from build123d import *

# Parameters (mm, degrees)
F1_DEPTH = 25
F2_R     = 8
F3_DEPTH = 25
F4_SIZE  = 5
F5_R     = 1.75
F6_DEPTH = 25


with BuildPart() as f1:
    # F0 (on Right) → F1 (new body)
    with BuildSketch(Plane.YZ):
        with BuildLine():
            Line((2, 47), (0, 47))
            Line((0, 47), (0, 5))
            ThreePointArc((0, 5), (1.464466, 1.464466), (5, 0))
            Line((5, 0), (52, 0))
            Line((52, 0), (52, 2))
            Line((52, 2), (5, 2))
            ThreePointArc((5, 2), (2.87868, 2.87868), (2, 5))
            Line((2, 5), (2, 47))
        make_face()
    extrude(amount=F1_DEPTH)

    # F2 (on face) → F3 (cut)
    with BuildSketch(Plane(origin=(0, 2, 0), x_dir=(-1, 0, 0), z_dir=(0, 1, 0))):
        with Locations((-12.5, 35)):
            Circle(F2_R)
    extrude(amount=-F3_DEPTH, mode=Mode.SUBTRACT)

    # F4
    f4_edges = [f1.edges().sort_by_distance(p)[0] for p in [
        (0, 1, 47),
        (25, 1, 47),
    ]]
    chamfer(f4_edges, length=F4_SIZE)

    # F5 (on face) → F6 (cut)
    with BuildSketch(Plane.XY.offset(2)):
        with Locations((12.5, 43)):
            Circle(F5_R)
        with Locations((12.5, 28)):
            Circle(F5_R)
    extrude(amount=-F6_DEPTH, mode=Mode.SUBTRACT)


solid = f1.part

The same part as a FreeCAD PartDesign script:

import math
import FreeCAD as App
import Part
import Sketcher
Q = App.Units.Quantity


def edges_at(feature, points):
    """Names of the edges that pass closest to the given points."""
    edges = feature.Shape.Edges
    near = lambda p: min(range(len(edges)), key=lambda i: edges[i].distToShape(Part.Vertex(*p))[0])
    return sorted({f"Edge{near(p) + 1}" for p in points})

doc = App.newDocument("Part")
body = doc.addObject("PartDesign::Body", "Body")

# Sketch on YZ plane
sketch1 = body.newObject("Sketcher::SketchObject", "Sketch")
sketch1.AttachmentSupport = (doc.getObject("YZ_Plane"), [""])
sketch1.MapMode = "FlatFace"
sketch1.addGeometry(Part.LineSegment(App.Vector(2, 47, 0), App.Vector(0, 47, 0)), False)
sketch1.addGeometry(Part.LineSegment(App.Vector(0, 47, 0), App.Vector(0, 5, 0)), False)
sketch1.addGeometry(Part.ArcOfCircle(Part.Circle(App.Vector(5, 5, 0), App.Vector(0, 0, 1), 5), math.radians(180), math.radians(270)), False)
sketch1.addGeometry(Part.LineSegment(App.Vector(5, 0, 0), App.Vector(52, 0, 0)), False)
sketch1.addGeometry(Part.LineSegment(App.Vector(52, 0, 0), App.Vector(52, 2, 0)), False)
sketch1.addGeometry(Part.LineSegment(App.Vector(52, 2, 0), App.Vector(5, 2, 0)), False)
sketch1.addGeometry(Part.ArcOfCircle(Part.Circle(App.Vector(5, 5, 0), App.Vector(0, 0, 1), 3), math.radians(-180), math.radians(-90)), False)
sketch1.addGeometry(Part.LineSegment(App.Vector(2, 5, 0), App.Vector(2, 47, 0)), False)
sketch1.addConstraint(Sketcher.Constraint("Coincident", 0, 2, 1, 1))
sketch1.addConstraint(Sketcher.Constraint("Tangent", 1, 2, 2, 1))
sketch1.addConstraint(Sketcher.Constraint("Tangent", 2, 2, 3, 1))
sketch1.addConstraint(Sketcher.Constraint("Coincident", 3, 2, 4, 1))
sketch1.addConstraint(Sketcher.Constraint("Coincident", 4, 2, 5, 1))
sketch1.addConstraint(Sketcher.Constraint("Tangent", 5, 2, 6, 2))
sketch1.addConstraint(Sketcher.Constraint("Tangent", 6, 1, 7, 1))
sketch1.addConstraint(Sketcher.Constraint("Coincident", 7, 2, 0, 1))
sketch1.addConstraint(Sketcher.Constraint("Horizontal", 0))
sketch1.addConstraint(Sketcher.Constraint("Vertical", 1))
sketch1.addConstraint(Sketcher.Constraint("Horizontal", 3))
sketch1.addConstraint(Sketcher.Constraint("Vertical", 4))
sketch1.addConstraint(Sketcher.Constraint("Horizontal", 5))
sketch1.addConstraint(Sketcher.Constraint("Vertical", 7))
sketch1.addConstraint(Sketcher.Constraint("Coincident", 6, 3, 2, 3))
sketch1.addConstraint(Sketcher.Constraint("PointOnObject", 0, 2, -2))
sketch1.addConstraint(Sketcher.Constraint("PointOnObject", 2, 2, -1))
sketch1.addConstraint(Sketcher.Constraint("Radius", 2, Q("5 mm")))
sketch1.addConstraint(Sketcher.Constraint("Radius", 6, Q("3.000001 mm")))
sketch1.addConstraint(Sketcher.Constraint("DistanceX", 3, 1, 3, 2, Q("47 mm")))
sketch1.addConstraint(Sketcher.Constraint("DistanceY", 1, 2, 1, 1, Q("42 mm")))
pad1 = body.newObject("PartDesign::Pad", "Pad")
pad1.Profile = sketch1
pad1.Length = 25

# Sketch on XZ plane
sketch2 = body.newObject("Sketcher::SketchObject", "Sketch001")
sketch2.AttachmentSupport = (doc.getObject("XZ_Plane"), [""])
sketch2.MapMode = "FlatFace"
sketch2.AttachmentOffset = App.Placement(App.Vector(0, 0, -2), App.Rotation())
sketch2.addGeometry(Part.Circle(App.Vector(12, 35, 0), App.Vector(0, 0, 1), 8), False)
sketch2.addConstraint(Sketcher.Constraint("Diameter", 0, Q("16 mm")))
sketch2.addConstraint(Sketcher.Constraint("DistanceY", -1, 1, 0, 3, Q("35 mm")))
sketch2.addConstraint(Sketcher.Constraint("DistanceX", -1, 1, 0, 3, Q("12.5 mm")))
pocket1 = body.newObject("PartDesign::Pocket", "Pocket")
pocket1.Profile = sketch2
pocket1.Length = 25
pocket1.Reversed = True
doc.recompute()

chamfer = body.newObject("PartDesign::Chamfer", "Chamfer")
chamfer.Base = (pocket1, edges_at(pocket1, [(0, 1, 47), (25, 1, 47)]))
chamfer.Size = 5

# Sketch on XY plane
sketch3 = body.newObject("Sketcher::SketchObject", "Sketch002")
sketch3.AttachmentSupport = (doc.getObject("XY_Plane"), [""])
sketch3.MapMode = "FlatFace"
sketch3.AttachmentOffset = App.Placement(App.Vector(0, 0, 2), App.Rotation())
sketch3.addGeometry(Part.Circle(App.Vector(12.5, 43, 0), App.Vector(0, 0, 1), 1.8), False)
sketch3.addGeometry(Part.Circle(App.Vector(12.5, 28, 0), App.Vector(0, 0, 1), 1.8), False)
sketch3.addConstraint(Sketcher.Constraint("Equal", 0, 1))
sketch3.addConstraint(Sketcher.Constraint("Vertical", 0, 3, 1, 3))
sketch3.addConstraint(Sketcher.Constraint("Diameter", 0, Q("3.5 mm")))
sketch3.addConstraint(Sketcher.Constraint("DistanceY", -1, 1, 0, 3, Q("43 mm")))
sketch3.addConstraint(Sketcher.Constraint("DistanceY", -1, 1, 1, 3, Q("28 mm")))
sketch3.addConstraint(Sketcher.Constraint("DistanceX", -1, 1, 0, 3, Q("12.5 mm")))
pocket2 = body.newObject("PartDesign::Pocket", "Pocket001")
pocket2.Profile = sketch3
pocket2.Length = 25

doc.recompute()
